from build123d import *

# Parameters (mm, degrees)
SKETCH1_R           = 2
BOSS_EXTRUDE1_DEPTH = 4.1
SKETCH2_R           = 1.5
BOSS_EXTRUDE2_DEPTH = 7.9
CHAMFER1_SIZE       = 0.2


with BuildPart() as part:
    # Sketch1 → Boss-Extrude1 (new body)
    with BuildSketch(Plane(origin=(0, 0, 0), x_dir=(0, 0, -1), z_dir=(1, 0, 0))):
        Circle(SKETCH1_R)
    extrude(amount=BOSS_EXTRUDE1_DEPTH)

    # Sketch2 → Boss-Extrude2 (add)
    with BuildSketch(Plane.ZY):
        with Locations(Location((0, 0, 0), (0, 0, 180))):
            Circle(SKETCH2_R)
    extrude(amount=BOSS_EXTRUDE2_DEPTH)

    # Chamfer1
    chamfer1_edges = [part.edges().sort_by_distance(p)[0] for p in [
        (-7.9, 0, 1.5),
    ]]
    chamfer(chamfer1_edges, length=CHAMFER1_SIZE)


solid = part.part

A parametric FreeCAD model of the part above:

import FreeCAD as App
import Part
import Sketcher
from FreeCAD import Vector


def edges_at(feature, points):
    """Names of the edges that pass closest to the given points."""
    edges = feature.Shape.Edges
    near = lambda p: min(range(len(edges)), key=lambda i: edges[i].distToShape(Part.Vertex(*p))[0])
    return sorted({f"Edge{near(p) + 1}" for p in points})

doc = App.newDocument("Part")
body = doc.addObject("PartDesign::Body", "Body")

sketch1 = body.newObject("Sketcher::SketchObject", "Sketch")
sketch1.AttachmentSupport = (doc.getObject("YZ_Plane"), [""])
sketch1.MapMode = "FlatFace"
sketch1.addGeometry(Part.Circle(Vector(0, 0, 0), Vector(0, 0, 1), 2), False)
sketch1.addConstraint([
    Sketcher.Constraint("Coincident", 0, 3, -1, 1),
    Sketcher.Constraint("Diameter", 0, 4.0),
])
pad1 = body.newObject("PartDesign::Pad", "Pad")
pad1.Profile = sketch1
pad1.Length = 4.1

sketch2 = body.newObject("Sketcher::SketchObject", "Sketch001")
sketch2.AttachmentSupport = (doc.getObject("YZ_Plane"), [""])
sketch2.MapMode = "FlatFace"
sketch2.addGeometry(Part.Circle(Vector(0, 0, 0), Vector(0, 0, 1), 1.5), False)
sketch2.addConstraint([
    Sketcher.Constraint("Coincident", 0, 3, -1, 1),
    Sketcher.Constraint("Diameter", 0, 3.0),
])
pad2 = body.newObject("PartDesign::Pad", "Pad001")
pad2.Profile = sketch2
pad2.Length = 7.9
pad2.Reversed = True
doc.recompute()

chamfer = body.newObject("PartDesign::Chamfer", "Chamfer")
chamfer.Base = (pad2, edges_at(pad2, [(-7.9, 0, 1.5)]))
chamfer.Size = 0.2

doc.recompute()
